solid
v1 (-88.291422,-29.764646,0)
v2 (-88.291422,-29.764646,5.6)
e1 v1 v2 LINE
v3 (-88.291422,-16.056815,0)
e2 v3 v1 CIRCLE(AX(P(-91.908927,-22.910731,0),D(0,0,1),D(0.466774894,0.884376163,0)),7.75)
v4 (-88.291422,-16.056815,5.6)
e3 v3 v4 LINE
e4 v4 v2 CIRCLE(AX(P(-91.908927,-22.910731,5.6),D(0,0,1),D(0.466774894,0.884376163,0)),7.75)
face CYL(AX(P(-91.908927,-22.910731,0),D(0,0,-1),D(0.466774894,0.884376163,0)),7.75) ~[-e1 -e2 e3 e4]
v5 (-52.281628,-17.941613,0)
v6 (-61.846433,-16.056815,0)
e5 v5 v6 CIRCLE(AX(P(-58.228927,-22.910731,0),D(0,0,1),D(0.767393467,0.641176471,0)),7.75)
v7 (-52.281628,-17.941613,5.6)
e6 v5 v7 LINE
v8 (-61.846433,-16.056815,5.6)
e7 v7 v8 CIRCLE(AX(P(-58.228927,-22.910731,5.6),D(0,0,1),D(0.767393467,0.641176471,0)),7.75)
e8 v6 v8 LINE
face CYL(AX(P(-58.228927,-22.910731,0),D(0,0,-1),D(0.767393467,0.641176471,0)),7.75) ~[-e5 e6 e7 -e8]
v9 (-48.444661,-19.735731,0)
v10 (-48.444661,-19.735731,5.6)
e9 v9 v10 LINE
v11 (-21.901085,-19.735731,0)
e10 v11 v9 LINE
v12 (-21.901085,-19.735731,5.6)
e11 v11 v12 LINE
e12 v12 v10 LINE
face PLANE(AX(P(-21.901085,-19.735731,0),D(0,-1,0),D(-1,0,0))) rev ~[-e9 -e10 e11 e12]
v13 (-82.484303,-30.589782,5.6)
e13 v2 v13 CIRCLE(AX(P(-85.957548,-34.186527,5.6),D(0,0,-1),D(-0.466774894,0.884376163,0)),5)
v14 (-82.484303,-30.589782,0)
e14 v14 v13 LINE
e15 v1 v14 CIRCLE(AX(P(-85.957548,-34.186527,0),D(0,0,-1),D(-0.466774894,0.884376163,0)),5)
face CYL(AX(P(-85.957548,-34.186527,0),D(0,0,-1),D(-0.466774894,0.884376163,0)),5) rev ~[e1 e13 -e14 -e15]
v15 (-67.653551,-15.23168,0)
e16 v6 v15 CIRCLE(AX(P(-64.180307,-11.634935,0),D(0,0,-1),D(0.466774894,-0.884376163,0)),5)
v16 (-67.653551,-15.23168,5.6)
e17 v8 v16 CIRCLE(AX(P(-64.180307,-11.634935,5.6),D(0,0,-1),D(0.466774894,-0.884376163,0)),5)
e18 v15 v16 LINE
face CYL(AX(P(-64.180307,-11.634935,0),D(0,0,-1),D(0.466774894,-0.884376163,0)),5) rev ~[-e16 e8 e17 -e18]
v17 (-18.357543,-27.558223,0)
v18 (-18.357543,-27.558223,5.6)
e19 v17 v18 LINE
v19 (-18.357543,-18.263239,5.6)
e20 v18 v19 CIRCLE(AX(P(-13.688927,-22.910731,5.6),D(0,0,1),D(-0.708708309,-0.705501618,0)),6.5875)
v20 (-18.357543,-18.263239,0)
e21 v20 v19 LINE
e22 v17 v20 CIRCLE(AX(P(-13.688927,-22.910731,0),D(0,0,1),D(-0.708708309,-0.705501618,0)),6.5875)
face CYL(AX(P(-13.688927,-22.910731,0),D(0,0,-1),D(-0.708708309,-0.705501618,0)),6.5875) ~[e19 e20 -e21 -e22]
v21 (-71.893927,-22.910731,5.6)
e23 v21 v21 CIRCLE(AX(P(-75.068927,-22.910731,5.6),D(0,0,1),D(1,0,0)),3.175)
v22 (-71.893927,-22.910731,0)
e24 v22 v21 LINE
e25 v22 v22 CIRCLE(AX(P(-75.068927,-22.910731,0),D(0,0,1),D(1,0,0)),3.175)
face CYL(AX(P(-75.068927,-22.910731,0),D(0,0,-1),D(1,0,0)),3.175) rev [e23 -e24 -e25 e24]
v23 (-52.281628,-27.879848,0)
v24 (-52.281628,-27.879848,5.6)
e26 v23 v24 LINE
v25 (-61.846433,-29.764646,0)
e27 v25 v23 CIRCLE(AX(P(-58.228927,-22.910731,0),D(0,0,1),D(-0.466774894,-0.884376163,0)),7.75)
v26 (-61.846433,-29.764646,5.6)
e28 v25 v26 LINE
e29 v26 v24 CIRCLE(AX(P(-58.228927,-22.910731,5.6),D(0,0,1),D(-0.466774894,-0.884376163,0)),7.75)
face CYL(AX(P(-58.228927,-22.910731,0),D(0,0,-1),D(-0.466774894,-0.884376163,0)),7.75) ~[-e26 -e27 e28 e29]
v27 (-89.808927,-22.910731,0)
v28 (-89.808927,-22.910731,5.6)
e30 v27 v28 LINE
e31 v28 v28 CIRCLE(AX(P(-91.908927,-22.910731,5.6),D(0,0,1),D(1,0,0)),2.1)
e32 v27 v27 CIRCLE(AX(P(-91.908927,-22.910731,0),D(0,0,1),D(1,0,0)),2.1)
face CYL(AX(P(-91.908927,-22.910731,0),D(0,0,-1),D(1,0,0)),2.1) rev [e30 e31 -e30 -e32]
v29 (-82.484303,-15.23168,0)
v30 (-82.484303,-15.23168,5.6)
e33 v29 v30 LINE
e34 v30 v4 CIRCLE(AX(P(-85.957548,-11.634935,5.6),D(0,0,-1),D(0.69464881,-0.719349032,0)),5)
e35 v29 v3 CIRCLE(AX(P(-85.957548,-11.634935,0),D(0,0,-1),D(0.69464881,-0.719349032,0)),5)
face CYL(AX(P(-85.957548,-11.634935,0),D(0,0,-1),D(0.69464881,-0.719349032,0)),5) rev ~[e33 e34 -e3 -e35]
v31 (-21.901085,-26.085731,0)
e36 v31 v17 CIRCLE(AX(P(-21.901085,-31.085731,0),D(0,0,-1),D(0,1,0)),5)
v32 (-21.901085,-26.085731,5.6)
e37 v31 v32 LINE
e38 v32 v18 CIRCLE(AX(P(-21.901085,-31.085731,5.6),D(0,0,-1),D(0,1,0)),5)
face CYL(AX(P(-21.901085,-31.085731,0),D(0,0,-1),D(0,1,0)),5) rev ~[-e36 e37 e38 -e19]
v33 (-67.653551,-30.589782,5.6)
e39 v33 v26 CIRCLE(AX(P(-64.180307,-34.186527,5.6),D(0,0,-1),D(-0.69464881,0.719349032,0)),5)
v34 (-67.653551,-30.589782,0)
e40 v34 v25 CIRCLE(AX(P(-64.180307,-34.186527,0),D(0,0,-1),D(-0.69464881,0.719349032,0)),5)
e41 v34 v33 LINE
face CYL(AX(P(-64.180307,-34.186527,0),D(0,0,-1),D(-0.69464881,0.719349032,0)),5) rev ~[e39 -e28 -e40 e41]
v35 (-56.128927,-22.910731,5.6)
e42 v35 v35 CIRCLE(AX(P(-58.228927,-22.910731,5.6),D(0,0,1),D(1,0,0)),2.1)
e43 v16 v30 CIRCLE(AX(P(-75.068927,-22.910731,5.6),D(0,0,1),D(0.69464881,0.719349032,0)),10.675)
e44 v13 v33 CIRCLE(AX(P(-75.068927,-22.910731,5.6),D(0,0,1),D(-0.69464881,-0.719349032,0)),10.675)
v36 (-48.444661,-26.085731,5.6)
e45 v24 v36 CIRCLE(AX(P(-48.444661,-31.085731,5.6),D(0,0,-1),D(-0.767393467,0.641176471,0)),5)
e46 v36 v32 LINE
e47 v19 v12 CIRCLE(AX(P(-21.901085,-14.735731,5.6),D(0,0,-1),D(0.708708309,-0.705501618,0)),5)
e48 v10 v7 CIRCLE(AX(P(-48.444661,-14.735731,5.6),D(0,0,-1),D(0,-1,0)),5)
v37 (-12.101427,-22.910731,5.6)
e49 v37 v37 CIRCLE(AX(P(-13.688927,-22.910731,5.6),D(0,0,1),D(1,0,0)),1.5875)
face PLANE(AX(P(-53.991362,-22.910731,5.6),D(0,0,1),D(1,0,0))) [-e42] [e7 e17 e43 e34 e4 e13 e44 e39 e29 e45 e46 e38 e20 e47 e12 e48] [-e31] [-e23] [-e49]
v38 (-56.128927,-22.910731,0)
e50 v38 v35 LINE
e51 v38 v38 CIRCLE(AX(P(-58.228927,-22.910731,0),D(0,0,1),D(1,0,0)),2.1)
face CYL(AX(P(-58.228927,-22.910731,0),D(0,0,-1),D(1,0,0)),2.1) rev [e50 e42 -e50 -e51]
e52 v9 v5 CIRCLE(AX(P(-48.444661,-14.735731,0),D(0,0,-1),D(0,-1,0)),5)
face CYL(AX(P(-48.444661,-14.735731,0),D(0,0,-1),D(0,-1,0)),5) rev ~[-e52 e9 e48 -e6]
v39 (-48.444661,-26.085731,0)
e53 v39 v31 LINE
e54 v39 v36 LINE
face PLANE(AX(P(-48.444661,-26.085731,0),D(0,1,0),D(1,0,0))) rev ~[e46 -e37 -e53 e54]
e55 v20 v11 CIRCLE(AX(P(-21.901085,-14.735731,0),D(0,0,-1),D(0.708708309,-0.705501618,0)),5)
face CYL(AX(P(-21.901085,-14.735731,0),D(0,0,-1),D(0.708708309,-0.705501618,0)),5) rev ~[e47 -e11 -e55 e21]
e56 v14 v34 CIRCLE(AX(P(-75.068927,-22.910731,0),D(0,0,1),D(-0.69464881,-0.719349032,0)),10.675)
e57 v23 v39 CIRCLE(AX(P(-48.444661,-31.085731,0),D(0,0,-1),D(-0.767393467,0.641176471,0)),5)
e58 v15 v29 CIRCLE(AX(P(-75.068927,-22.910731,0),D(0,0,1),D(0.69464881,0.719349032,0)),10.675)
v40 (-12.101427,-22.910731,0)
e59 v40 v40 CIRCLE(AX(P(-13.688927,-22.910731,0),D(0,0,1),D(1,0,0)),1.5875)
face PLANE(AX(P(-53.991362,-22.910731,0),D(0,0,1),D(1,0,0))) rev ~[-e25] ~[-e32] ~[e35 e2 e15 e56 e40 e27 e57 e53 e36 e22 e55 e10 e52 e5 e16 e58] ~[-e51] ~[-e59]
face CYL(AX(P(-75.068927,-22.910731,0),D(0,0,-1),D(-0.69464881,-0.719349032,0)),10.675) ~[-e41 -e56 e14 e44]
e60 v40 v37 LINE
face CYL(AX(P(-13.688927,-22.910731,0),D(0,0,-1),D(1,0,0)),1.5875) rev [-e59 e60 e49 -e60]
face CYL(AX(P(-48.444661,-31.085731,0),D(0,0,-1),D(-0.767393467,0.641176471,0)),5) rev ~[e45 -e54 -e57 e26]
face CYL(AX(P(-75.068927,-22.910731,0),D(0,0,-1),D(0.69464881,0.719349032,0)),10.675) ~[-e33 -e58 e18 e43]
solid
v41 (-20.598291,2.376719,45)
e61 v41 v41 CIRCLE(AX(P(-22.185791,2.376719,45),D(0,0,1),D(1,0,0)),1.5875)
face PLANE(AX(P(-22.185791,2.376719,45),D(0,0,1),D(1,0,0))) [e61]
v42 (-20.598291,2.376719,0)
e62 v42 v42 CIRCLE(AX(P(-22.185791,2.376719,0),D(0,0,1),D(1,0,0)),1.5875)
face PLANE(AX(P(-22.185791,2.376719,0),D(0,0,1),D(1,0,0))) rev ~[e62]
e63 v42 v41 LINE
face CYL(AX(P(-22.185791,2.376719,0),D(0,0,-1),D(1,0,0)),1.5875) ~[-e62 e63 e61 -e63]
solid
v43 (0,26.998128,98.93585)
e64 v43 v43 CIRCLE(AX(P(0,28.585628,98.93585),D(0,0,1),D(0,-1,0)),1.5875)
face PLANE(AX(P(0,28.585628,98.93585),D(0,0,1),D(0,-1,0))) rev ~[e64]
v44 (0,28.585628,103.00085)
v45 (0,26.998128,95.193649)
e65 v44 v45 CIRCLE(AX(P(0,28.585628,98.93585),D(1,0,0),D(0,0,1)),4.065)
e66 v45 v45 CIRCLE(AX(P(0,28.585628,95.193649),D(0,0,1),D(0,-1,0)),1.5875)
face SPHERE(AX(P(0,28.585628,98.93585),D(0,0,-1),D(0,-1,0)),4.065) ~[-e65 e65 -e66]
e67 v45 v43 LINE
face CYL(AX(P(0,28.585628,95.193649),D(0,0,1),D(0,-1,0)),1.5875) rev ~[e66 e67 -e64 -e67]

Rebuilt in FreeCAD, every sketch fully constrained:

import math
import FreeCAD as App
import Part
import Sketcher

doc = App.newDocument("Part")
body = doc.addObject("PartDesign::Body", "Body")

# Sketch on YZ plane
sketch1 = body.newObject("Sketcher::SketchObject", "Sketch")
sketch1.AttachmentSupport = (doc.getObject("YZ_Plane"), [""])
sketch1.MapMode = "FlatFace"
sketch1.addGeometry([
    Part.LineSegment(App.Vector(28.585628, 98.93585, 0), App.Vector(28.585628, 103.00085, 0)),
    Part.ArcOfCircle(Part.Circle(App.Vector(28.585628, 98.93585, 0), App.Vector(0, 0, 1), 4.065), math.radians(90), math.radians(247.012587)),
    Part.LineSegment(App.Vector(26.998128, 95.193649, 0), App.Vector(26.998128, 98.93585, 0)),
    Part.LineSegment(App.Vector(26.998128, 98.93585, 0), App.Vector(28.585628, 98.93585, 0)),
], False)
sketch1.addGeometry(Part.LineSegment(App.Vector(28.585628, 95.193649, 0), App.Vector(28.585628, 103.00085, 0)), True)  # axis
sketch1.addConstraint([
    Sketcher.Constraint("Coincident", 0, 2, 1, 1),
    Sketcher.Constraint("Coincident", 1, 2, 2, 1),
    Sketcher.Constraint("Coincident", 2, 2, 3, 1),
    Sketcher.Constraint("Coincident", 3, 2, 0, 1),
    Sketcher.Constraint("Vertical", 0),
    Sketcher.Constraint("Vertical", 2),
    Sketcher.Constraint("Horizontal", 3),
    Sketcher.Constraint("Vertical", 4),
    Sketcher.Constraint("Coincident", 3, 2, 1, 3),
    Sketcher.Constraint("Coincident", 4, 2, 0, 2),
    Sketcher.Constraint("Horizontal", 1, 2, 4, 1),
    Sketcher.Constraint("Radius", 1, 4.065),
    Sketcher.Constraint("DistanceX", 3, 1, 3, 2, 1.5875),
    Sketcher.Constraint("DistanceY", -1, 1, 1, 3, 98.93585),
    Sketcher.Constraint("DistanceX", -1, 1, 1, 3, 28.585628),
])
revolution = body.newObject("PartDesign::Revolution", "Revolution")
revolution.Profile = sketch1
revolution.ReferenceAxis = (sketch1, ["Axis0"])
revolution.Angle = 360
body2 = doc.addObject("PartDesign::Body", "Body001")

# Sketch on XY plane
sketch2 = body2.newObject("Sketcher::SketchObject", "Sketch001")
sketch2.AttachmentSupport = (doc.getObject("XY_Plane001"), [""])
sketch2.MapMode = "FlatFace"
sketch2.addGeometry(Part.Circle(App.Vector(-22.185791, 2.376719, 0), App.Vector(0, 0, 1), 1.5875), False)
sketch2.addConstraint([
    Sketcher.Constraint("Diameter", 0, 3.175),
    Sketcher.Constraint("DistanceX", 0, 3, -1, 1, 22.185791),
    Sketcher.Constraint("DistanceY", -1, 1, 0, 3, 2.376719),
])
pad1 = body2.newObject("PartDesign::Pad", "Pad")
pad1.Profile = sketch2
pad1.Length = 45
body3 = doc.addObject("PartDesign::Body", "Body002")

# Sketch on XY plane
sketch3 = body3.newObject("Sketcher::SketchObject", "Sketch002")
sketch3.AttachmentSupport = (doc.getObject("XY_Plane002"), [""])
sketch3.MapMode = "FlatFace"
sketch3.addGeometry([
    Part.ArcOfCircle(Part.Circle(App.Vector(-64.180307, -11.634935, 0), App.Vector(0, 0, 1), 5), math.radians(-133.999239), math.radians(-62.174849)),  # 0
    Part.ArcOfCircle(Part.Circle(App.Vector(-75.068927, -22.910731, 0), App.Vector(0, 0, 1), 10.675), math.radians(46.000761), math.radians(133.999239)),  # 1
    Part.ArcOfCircle(Part.Circle(App.Vector(-85.957548, -11.634935, 0), App.Vector(0, 0, 1), 5), math.radians(-117.825151), math.radians(-46.000761)),  # 2
    Part.ArcOfCircle(Part.Circle(App.Vector(-91.908927, -22.910731, 0), App.Vector(0, 0, 1), 7.75), math.radians(62.174849), math.radians(297.825151)),  # 3
    Part.ArcOfCircle(Part.Circle(App.Vector(-85.957548, -34.186527, 0), App.Vector(0, 0, 1), 5), math.radians(46.000761), math.radians(117.825151)),  # 4
    Part.ArcOfCircle(Part.Circle(App.Vector(-75.068927, -22.910731, 0), App.Vector(0, 0, 1), 10.675), math.radians(-133.999239), math.radians(-46.000761)),  # 5
    Part.ArcOfCircle(Part.Circle(App.Vector(-64.180307, -34.186527, 0), App.Vector(0, 0, 1), 5), math.radians(62.174849), math.radians(133.999239)),  # 6
    Part.ArcOfCircle(Part.Circle(App.Vector(-58.228927, -22.910731, 0), App.Vector(0, 0, 1), 7.75), math.radians(-117.825151), math.radians(-39.879602)),  # 7
    Part.ArcOfCircle(Part.Circle(App.Vector(-48.444661, -31.085731, 0), App.Vector(0, 0, 1), 5), math.radians(90), math.radians(140.120398)),  # 8
    Part.LineSegment(App.Vector(-48.444661, -26.085731, 0), App.Vector(-21.901085, -26.085731, 0)),  # 9
    Part.ArcOfCircle(Part.Circle(App.Vector(-21.901085, -31.085731, 0), App.Vector(0, 0, 1), 5), math.radians(44.870083), math.radians(90)),  # 10
    Part.ArcOfCircle(Part.Circle(App.Vector(-13.688927, -22.910731, 0), App.Vector(0, 0, 1), 6.5875), math.radians(-135.129917), math.radians(135.129917)),  # 11
    Part.ArcOfCircle(Part.Circle(App.Vector(-21.901085, -14.735731, 0), App.Vector(0, 0, 1), 5), math.radians(-90), math.radians(-44.870083)),  # 12
    Part.LineSegment(App.Vector(-21.901085, -19.735731, 0), App.Vector(-48.444661, -19.735731, 0)),  # 13
    Part.ArcOfCircle(Part.Circle(App.Vector(-48.444661, -14.735731, 0), App.Vector(0, 0, 1), 5), math.radians(-140.120398), math.radians(-90)),  # 14
    Part.ArcOfCircle(Part.Circle(App.Vector(-58.228927, -22.910731, 0), App.Vector(0, 0, 1), 7.75), math.radians(39.879602), math.radians(117.825151)),  # 15
    Part.Circle(App.Vector(-91.908927, -22.910731, 0), App.Vector(0, 0, 1), 2.1),  # 16
    Part.Circle(App.Vector(-75.068927, -22.910731, 0), App.Vector(0, 0, 1), 3.175),  # 17
    Part.Circle(App.Vector(-58.228927, -22.910731, 0), App.Vector(0, 0, 1), 2.1),  # 18
    Part.Circle(App.Vector(-13.688927, -22.910731, 0), App.Vector(0, 0, 1), 1.5875),  # 19
], False)
sketch3.addConstraint([
    Sketcher.Constraint("Tangent", 0, 1, 1, 1),
    Sketcher.Constraint("Tangent", 1, 2, 2, 2),
    Sketcher.Constraint("Tangent", 2, 1, 3, 1),
    Sketcher.Constraint("Tangent", 3, 2, 4, 2),
    Sketcher.Constraint("Tangent", 4, 1, 5, 1),
    Sketcher.Constraint("Tangent", 5, 2, 6, 2),
    Sketcher.Constraint("Tangent", 6, 1, 7, 1),
    Sketcher.Constraint("Tangent", 7, 2, 8, 2),
    Sketcher.Constraint("Tangent", 8, 1, 9, 1),
    Sketcher.Constraint("Tangent", 9, 2, 10, 2),
    Sketcher.Constraint("Tangent", 10, 1, 11, 1),
    Sketcher.Constraint("Tangent", 11, 2, 12, 2),
    Sketcher.Constraint("Tangent", 12, 1, 13, 1),
    Sketcher.Constraint("Tangent", 13, 2, 14, 2),
    Sketcher.Constraint("Tangent", 14, 1, 15, 1),
    Sketcher.Constraint("Tangent", 15, 2, 0, 2),
    Sketcher.Constraint("Horizontal", 9),
    Sketcher.Constraint("Horizontal", 13),
    Sketcher.Constraint("Coincident", 5, 3, 1, 3),
    Sketcher.Constraint("Coincident", 15, 3, 7, 3),
    Sketcher.Constraint("Coincident", 16, 3, 3, 3),
    Sketcher.Constraint("Coincident", 17, 3, 1, 3),
    Sketcher.Constraint("Coincident", 18, 3, 7, 3),
    Sketcher.Constraint("Coincident", 19, 3, 11, 3),
    Sketcher.Constraint("Equal", 0, 2),
    Sketcher.Constraint("Equal", 2, 4),
    Sketcher.Constraint("Equal", 1, 5),
    Sketcher.Constraint("Equal", 4, 6),
    Sketcher.Constraint("Equal", 3, 7),
    Sketcher.Constraint("Equal", 6, 8),
    Sketcher.Constraint("Equal", 8, 10),
    Sketcher.Constraint("Equal", 10, 12),
    Sketcher.Constraint("Equal", 12, 14),
    Sketcher.Constraint("Equal", 7, 15),
    Sketcher.Constraint("Equal", 16, 18),
    Sketcher.Constraint("Horizontal", 0, 3, 2, 3),
    Sketcher.Constraint("Horizontal", 1, 3, 3, 3),
    Sketcher.Constraint("Horizontal", 4, 3, 6, 3),
    Sketcher.Constraint("Horizontal", 7, 3, 11, 3),
    Sketcher.Constraint("Vertical", 10, 3, 12, 3),
    Sketcher.Constraint("Radius", 0, 5.0),
    Sketcher.Constraint("Diameter", 16, 4.2),
    Sketcher.Constraint("Diameter", 17, 6.35),
    Sketcher.Constraint("Radius", 3, 7.75),
    Sketcher.Constraint("Diameter", 19, 3.175),
    Sketcher.Constraint("Radius", 1, 10.675),
    Sketcher.Constraint("Radius", 11, 6.5875),
    Sketcher.Constraint("DistanceX", 3, 3, 1, 3, 16.84),
    Sketcher.Constraint("DistanceX", 7, 3, 11, 3, 44.54),
    Sketcher.Constraint("DistanceY", 10, 3, 12, 3, 16.35),
    Sketcher.Constraint("DistanceY", 1, 3, -1, 1, 22.910731),
    Sketcher.Constraint("DistanceX", 8, 3, -1, 1, 48.444661),
])
pad2 = body3.newObject("PartDesign::Pad", "Pad001")
pad2.Profile = sketch3
pad2.Length = 5.6

doc.recompute()
